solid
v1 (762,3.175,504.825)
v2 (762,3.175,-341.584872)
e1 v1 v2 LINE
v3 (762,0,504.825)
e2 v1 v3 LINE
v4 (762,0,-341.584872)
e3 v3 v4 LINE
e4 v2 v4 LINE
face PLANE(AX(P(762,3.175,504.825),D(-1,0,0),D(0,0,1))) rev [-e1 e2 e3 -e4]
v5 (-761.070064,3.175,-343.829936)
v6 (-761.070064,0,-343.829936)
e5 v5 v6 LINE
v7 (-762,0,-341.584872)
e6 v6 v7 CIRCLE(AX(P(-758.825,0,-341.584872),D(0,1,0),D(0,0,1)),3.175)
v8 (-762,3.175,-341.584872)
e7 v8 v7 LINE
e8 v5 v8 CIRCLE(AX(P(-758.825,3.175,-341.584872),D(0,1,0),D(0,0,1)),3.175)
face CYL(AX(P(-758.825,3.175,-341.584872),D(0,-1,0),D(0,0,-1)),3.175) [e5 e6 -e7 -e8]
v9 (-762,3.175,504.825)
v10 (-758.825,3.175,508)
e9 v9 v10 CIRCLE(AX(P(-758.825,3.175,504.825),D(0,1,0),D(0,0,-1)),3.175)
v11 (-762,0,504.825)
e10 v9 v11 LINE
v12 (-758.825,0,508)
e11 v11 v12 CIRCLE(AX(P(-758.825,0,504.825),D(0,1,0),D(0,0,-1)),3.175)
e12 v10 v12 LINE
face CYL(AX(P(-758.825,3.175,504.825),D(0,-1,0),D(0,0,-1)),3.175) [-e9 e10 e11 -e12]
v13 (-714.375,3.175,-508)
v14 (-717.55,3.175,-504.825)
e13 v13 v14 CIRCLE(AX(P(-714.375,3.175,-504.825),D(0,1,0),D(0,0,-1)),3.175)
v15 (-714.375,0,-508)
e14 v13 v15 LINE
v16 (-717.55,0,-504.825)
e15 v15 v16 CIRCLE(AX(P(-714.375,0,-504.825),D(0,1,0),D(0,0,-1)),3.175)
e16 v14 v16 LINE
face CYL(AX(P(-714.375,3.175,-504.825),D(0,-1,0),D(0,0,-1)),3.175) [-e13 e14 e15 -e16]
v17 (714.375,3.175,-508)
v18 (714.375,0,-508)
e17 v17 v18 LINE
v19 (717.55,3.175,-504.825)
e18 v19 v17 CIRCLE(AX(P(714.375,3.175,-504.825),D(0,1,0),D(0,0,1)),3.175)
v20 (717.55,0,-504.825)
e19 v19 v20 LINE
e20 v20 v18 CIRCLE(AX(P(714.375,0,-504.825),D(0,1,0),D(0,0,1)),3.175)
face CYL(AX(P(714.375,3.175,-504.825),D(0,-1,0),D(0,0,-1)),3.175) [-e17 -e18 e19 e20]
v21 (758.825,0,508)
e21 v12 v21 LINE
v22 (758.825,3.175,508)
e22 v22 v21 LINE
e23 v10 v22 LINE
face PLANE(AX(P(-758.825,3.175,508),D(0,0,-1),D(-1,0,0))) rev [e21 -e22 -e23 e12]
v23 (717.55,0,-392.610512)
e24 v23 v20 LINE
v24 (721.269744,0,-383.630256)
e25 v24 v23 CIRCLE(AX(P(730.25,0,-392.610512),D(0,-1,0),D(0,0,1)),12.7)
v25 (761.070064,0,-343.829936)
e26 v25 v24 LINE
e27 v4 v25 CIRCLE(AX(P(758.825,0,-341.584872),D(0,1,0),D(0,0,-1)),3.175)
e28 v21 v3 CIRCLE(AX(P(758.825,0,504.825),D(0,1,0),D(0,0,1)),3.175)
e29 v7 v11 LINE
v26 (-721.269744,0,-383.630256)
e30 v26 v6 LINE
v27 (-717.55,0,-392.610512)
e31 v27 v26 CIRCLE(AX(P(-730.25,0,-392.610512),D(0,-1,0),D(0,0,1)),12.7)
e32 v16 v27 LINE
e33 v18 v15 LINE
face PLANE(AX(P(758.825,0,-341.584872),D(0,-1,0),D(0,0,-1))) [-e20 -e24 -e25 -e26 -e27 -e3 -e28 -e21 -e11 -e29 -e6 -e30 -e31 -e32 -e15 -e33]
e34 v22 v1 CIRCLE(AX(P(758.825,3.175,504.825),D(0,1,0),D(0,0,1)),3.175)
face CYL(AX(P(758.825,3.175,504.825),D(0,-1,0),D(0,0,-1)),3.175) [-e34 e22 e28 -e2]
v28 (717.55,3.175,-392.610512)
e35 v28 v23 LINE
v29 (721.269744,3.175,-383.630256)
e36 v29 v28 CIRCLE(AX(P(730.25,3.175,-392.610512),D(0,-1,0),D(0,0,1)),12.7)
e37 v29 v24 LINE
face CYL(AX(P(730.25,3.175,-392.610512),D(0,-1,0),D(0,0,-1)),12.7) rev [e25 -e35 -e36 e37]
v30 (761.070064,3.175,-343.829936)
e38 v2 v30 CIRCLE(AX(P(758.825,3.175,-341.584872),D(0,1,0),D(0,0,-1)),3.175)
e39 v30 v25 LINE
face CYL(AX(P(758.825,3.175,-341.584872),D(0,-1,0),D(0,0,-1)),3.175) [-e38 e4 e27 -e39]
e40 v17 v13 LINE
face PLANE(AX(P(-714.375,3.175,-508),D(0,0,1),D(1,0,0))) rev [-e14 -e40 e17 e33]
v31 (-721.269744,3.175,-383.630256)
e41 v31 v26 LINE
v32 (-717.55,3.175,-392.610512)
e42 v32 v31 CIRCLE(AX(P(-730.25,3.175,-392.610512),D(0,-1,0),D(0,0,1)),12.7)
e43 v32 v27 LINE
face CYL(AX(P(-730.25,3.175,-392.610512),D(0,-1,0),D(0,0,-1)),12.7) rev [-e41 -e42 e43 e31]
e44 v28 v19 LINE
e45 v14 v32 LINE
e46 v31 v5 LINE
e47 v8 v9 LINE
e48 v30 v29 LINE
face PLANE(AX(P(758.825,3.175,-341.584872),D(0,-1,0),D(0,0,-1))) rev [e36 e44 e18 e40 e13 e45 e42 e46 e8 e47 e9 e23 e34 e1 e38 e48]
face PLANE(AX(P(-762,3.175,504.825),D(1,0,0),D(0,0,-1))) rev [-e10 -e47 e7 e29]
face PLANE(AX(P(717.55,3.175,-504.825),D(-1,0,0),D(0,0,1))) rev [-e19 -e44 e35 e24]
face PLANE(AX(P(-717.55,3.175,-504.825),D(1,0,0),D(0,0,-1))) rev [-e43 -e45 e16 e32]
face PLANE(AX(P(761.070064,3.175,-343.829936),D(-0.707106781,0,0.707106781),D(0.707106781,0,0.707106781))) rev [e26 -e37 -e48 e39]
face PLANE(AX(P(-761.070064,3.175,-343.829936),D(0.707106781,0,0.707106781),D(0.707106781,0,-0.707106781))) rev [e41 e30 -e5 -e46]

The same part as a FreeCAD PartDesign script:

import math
import FreeCAD as App
import Part
import Sketcher

V = App.Vector
Q = App.Units.Quantity

doc = App.newDocument("Part")
params = doc.addObject("Spreadsheet::Sheet", "Params")
for row, (alias, value) in enumerate([
    ("sketch1_radius", "0.5 in"),
    ("sketch1_radius2", "0.125 in"),
    ("pad1_length", "0.125 in"),
], start=1):
    params.set(f"A{row}", alias)
    params.set(f"B{row}", "=" + value)
    params.setAlias(f"B{row}", alias)

body = doc.addObject("PartDesign::Body", "Body")

sketch1 = doc.addObject("Sketcher::SketchObject", "Sketch")
body.addObject(sketch1)
sketch1.AttachmentSupport = (doc.XZ_Plane, [""])
sketch1.MapMode = "FlatFace"
sketch1.addGeometry([
    Part.LineSegment(V(-717.5, -504.8, 0), V(-717.5, -392.6, 0)),
    Part.ArcOfCircle(Part.Circle(V(-730.2, -392.6, 0), V(0, 0, 1), 12.7), math.radians(0), math.radians(45)),
    Part.LineSegment(V(-721.3, -383.6, 0), V(-761.1, -343.8, 0)),
    Part.ArcOfCircle(Part.Circle(V(-758.8, -341.6, 0), V(0, 0, 1), 3.2), math.radians(180), math.radians(225)),
    Part.LineSegment(V(-762, -341.6, 0), V(-762, 504.8, 0)),
    Part.ArcOfCircle(Part.Circle(V(-758.8, 504.8, 0), V(0, 0, 1), 3.2), math.radians(90), math.radians(180)),
    Part.LineSegment(V(-758.8, 508, 0), V(758.8, 508, 0)),
    Part.ArcOfCircle(Part.Circle(V(758.8, 504.8, 0), V(0, 0, 1), 3.2), math.radians(0), math.radians(90)),
    Part.LineSegment(V(762, 504.8, 0), V(762, -341.6, 0)),
    Part.ArcOfCircle(Part.Circle(V(758.8, -341.6, 0), V(0, 0, 1), 3.2), math.radians(-45), math.radians(0)),
    Part.LineSegment(V(761.1, -343.8, 0), V(721.3, -383.6, 0)),
    Part.ArcOfCircle(Part.Circle(V(730.2, -392.6, 0), V(0, 0, 1), 12.7), math.radians(135), math.radians(180)),
    Part.LineSegment(V(717.5, -392.6, 0), V(717.5, -504.8, 0)),
    Part.ArcOfCircle(Part.Circle(V(714.4, -504.8, 0), V(0, 0, 1), 3.2), math.radians(-90), math.radians(0)),
    Part.LineSegment(V(714.4, -508, 0), V(-714.4, -508, 0)),
    Part.ArcOfCircle(Part.Circle(V(-714.4, -504.8, 0), V(0, 0, 1), 3.2), math.radians(-180), math.radians(-90)),
], False)
sketch1.addConstraint([
    Sketcher.Constraint("Tangent", 0, 2, 1, 1),
    Sketcher.Constraint("Tangent", 1, 2, 2, 1),
    Sketcher.Constraint("Tangent", 2, 2, 3, 2),
    Sketcher.Constraint("Tangent", 3, 1, 4, 1),
    Sketcher.Constraint("Tangent", 4, 2, 5, 2),
    Sketcher.Constraint("Tangent", 5, 1, 6, 1),
    Sketcher.Constraint("Tangent", 6, 2, 7, 2),
    Sketcher.Constraint("Tangent", 7, 1, 8, 1),
    Sketcher.Constraint("Tangent", 8, 2, 9, 2),
    Sketcher.Constraint("Tangent", 9, 1, 10, 1),
    Sketcher.Constraint("Tangent", 10, 2, 11, 1),
    Sketcher.Constraint("Tangent", 11, 2, 12, 1),
    Sketcher.Constraint("Tangent", 12, 2, 13, 2),
    Sketcher.Constraint("Tangent", 13, 1, 14, 1),
    Sketcher.Constraint("Tangent", 14, 2, 15, 2),
    Sketcher.Constraint("Tangent", 15, 1, 0, 1),
    Sketcher.Constraint("Vertical", 0),
    Sketcher.Constraint("Vertical", 4),
    Sketcher.Constraint("Horizontal", 6),
    Sketcher.Constraint("Vertical", 8),
    Sketcher.Constraint("Vertical", 12),
    Sketcher.Constraint("Horizontal", 14),
    Sketcher.Constraint("Equal", 3, 5),
    Sketcher.Constraint("Equal", 5, 7),
    Sketcher.Constraint("Equal", 7, 9),
    Sketcher.Constraint("Equal", 1, 11),
    Sketcher.Constraint("Equal", 9, 13),
    Sketcher.Constraint("Equal", 13, 15),
    Sketcher.Constraint("Symmetric", 3, 3, 9, 3, -2),
    Sketcher.Constraint("Symmetric", 1, 3, 11, 3, -2),
    Sketcher.Constraint("Perpendicular", 2, 10),
    Sketcher.Constraint("Radius", 1, Q("0.5 in")),
    Sketcher.Constraint("DistanceX", 3, 1, -1, 1, Q("30 in")),
    Sketcher.Constraint("DistanceY", -1, 1, 5, 1, Q("20 in")),
    Sketcher.Constraint("DistanceY", 13, 1, -1, 1, Q("20 in")),
    Sketcher.Constraint("Radius", 3, Q("0.125 in")),
    Sketcher.Constraint("DistanceX", 3, 3, 13, 3, Q("58 in")),
    Sketcher.Constraint("DistanceY", 4, 1, 4, 2, 846.409872),
])
sketch1.setExpression("Constraints[31]", "Params.sketch1_radius")
sketch1.setExpression("Constraints[35]", "Params.sketch1_radius2")
pad1 = doc.addObject("PartDesign::Pad", "Pad")
body.addObject(pad1)
pad1.Profile = sketch1
pad1.setExpression("Length", "Params.pad1_length")
pad1.Reversed = True

doc.recompute()
